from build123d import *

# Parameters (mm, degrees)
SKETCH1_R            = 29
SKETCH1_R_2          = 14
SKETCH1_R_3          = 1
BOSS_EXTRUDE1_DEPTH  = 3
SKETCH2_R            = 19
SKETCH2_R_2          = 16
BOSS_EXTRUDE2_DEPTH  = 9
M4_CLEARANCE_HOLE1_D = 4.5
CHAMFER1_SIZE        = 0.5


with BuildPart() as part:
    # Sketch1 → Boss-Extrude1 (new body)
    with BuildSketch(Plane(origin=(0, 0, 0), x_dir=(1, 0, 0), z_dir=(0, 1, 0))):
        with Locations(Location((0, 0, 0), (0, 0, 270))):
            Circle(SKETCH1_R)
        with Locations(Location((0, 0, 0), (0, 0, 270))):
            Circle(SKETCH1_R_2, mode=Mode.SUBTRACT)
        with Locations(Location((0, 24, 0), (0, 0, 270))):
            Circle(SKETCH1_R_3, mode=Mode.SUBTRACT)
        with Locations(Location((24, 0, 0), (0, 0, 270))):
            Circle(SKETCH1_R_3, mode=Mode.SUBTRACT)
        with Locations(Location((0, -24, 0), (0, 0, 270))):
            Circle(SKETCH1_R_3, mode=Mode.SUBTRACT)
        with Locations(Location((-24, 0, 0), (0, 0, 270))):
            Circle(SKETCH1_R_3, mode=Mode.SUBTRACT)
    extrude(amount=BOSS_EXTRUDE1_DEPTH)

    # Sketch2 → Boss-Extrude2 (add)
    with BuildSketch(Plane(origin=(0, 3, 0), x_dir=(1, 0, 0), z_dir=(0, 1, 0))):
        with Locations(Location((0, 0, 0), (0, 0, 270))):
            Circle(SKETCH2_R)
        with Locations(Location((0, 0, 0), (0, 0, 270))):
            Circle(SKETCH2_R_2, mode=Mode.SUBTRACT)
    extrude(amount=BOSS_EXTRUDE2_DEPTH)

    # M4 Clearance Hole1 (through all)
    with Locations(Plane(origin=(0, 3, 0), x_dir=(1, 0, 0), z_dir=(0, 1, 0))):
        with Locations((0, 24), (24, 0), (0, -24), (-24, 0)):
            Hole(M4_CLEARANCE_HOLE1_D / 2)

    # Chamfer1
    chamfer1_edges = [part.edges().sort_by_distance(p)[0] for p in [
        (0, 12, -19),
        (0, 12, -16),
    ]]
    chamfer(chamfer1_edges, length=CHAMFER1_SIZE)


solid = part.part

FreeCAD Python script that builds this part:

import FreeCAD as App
import Part
import Sketcher


def edges_at(feature, points):
    """Names of the edges that pass closest to the given points."""
    edges = feature.Shape.Edges
    near = lambda p: min(range(len(edges)), key=lambda i: edges[i].distToShape(Part.Vertex(*p))[0])
    return sorted({f"Edge{near(p) + 1}" for p in points})

doc = App.newDocument("Part")
body = doc.addObject("PartDesign::Body", "Body")

# Sketch on XZ plane
sketch1 = body.newObject("Sketcher::SketchObject", "Sketch")
sketch1.AttachmentSupport = (doc.getObject("XZ_Plane"), [""])
sketch1.MapMode = "FlatFace"
sketch1.addGeometry(Part.Circle(App.Vector(0, 0, 0), App.Vector(0, 0, 1), 29), False)
sketch1.addGeometry(Part.Circle(App.Vector(0, -24, 0), App.Vector(0, 0, 1), 1), False)
sketch1.addGeometry(Part.Circle(App.Vector(-24, 0, 0), App.Vector(0, 0, 1), 1), False)
sketch1.addGeometry(Part.Circle(App.Vector(24, 0, 0), App.Vector(0, 0, 1), 1), False)
sketch1.addGeometry(Part.Circle(App.Vector(0, 0, 0), App.Vector(0, 0, 1), 14), False)
sketch1.addGeometry(Part.Circle(App.Vector(0, 24, 0), App.Vector(0, 0, 1), 1), False)
sketch1.addConstraint(Sketcher.Constraint("Coincident", 0, 3, -1, 1))
sketch1.addConstraint(Sketcher.Constraint("Coincident", 4, 3, -1, 1))
sketch1.addConstraint(Sketcher.Constraint("Equal", 1, 2))
sketch1.addConstraint(Sketcher.Constraint("Equal", 2, 3))
sketch1.addConstraint(Sketcher.Constraint("Equal", 3, 5))
sketch1.addConstraint(Sketcher.Constraint("Symmetric", 2, 3, 3, 3, -1, 1))
sketch1.addConstraint(Sketcher.Constraint("Symmetric", 1, 3, 5, 3, -1, 1))
sketch1.addConstraint(Sketcher.Constraint("PointOnObject", 1, 3, -2))
sketch1.addConstraint(Sketcher.Constraint("PointOnObject", 2, 3, -1))
sketch1.addConstraint(Sketcher.Constraint("Diameter", 0, 58.0))
sketch1.addConstraint(Sketcher.Constraint("Diameter", 1, 2.0))
sketch1.addConstraint(Sketcher.Constraint("Diameter", 4, 28.0))
sketch1.addConstraint(Sketcher.Constraint("DistanceY", 1, 3, -1, 1, 24.0))
sketch1.addConstraint(Sketcher.Constraint("DistanceX", 2, 3, -1, 1, 24.0))
pad1 = body.newObject("PartDesign::Pad", "Pad")
pad1.Profile = sketch1
pad1.Length = 3
pad1.Reversed = True

# Sketch on XZ plane
sketch2 = body.newObject("Sketcher::SketchObject", "Sketch001")
sketch2.AttachmentSupport = (doc.getObject("XZ_Plane"), [""])
sketch2.MapMode = "FlatFace"
sketch2.AttachmentOffset = App.Placement(App.Vector(0, 0, -3), App.Rotation())
sketch2.addGeometry(Part.Circle(App.Vector(0, 0, 0), App.Vector(0, 0, 1), 19), False)
sketch2.addGeometry(Part.Circle(App.Vector(0, 0, 0), App.Vector(0, 0, 1), 16), False)
sketch2.addConstraint(Sketcher.Constraint("Coincident", 0, 3, -1, 1))
sketch2.addConstraint(Sketcher.Constraint("Coincident", 1, 3, -1, 1))
sketch2.addConstraint(Sketcher.Constraint("Diameter", 0, 38.0))
sketch2.addConstraint(Sketcher.Constraint("Diameter", 1, 32.0))
pad2 = body.newObject("PartDesign::Pad", "Pad001")
pad2.Profile = sketch2
pad2.Length = 9
pad2.Reversed = True

# Sketch on XZ plane
sketch3 = body.newObject("Sketcher::SketchObject", "Sketch002")
sketch3.AttachmentSupport = (doc.getObject("XZ_Plane"), [""])
sketch3.MapMode = "FlatFace"
sketch3.AttachmentOffset = App.Placement(App.Vector(0, 0, -3), App.Rotation())
sketch3.addGeometry(Part.Circle(App.Vector(0, -24, 0), App.Vector(0, 0, 1), 2.2), False)
sketch3.addGeometry(Part.Circle(App.Vector(24, 0, 0), App.Vector(0, 0, 1), 2.2), False)
sketch3.addGeometry(Part.Circle(App.Vector(0, 24, 0), App.Vector(0, 0, 1), 2.2), False)
sketch3.addGeometry(Part.Circle(App.Vector(-24, 0, 0), App.Vector(0, 0, 1), 2.2), False)
sketch3.addConstraint(Sketcher.Constraint("Equal", 0, 1))
sketch3.addConstraint(Sketcher.Constraint("Equal", 1, 2))
sketch3.addConstraint(Sketcher.Constraint("Equal", 2, 3))
sketch3.addConstraint(Sketcher.Constraint("Symmetric", 0, 3, 2, 3, -1, 1))
sketch3.addConstraint(Sketcher.Constraint("Symmetric", 1, 3, 3, 3, -1, 1))
sketch3.addConstraint(Sketcher.Constraint("PointOnObject", 0, 3, -2))
sketch3.addConstraint(Sketcher.Constraint("PointOnObject", 1, 3, -1))
sketch3.addConstraint(Sketcher.Constraint("Diameter", 0, 4.5))
sketch3.addConstraint(Sketcher.Constraint("DistanceY", 0, 3, -1, 1, 24.0))
sketch3.addConstraint(Sketcher.Constraint("DistanceX", -1, 1, 1, 3, 24.0))
doc.recompute()
hole = body.newObject("PartDesign::Hole", "Hole")
hole.Profile = sketch3
hole.ThreadType = "None"
hole.Diameter = 4.5
hole.DepthType = "ThroughAll"
hole.Reversed = True
doc.recompute()

chamfer = body.newObject("PartDesign::Chamfer", "Chamfer")
chamfer.Base = (hole, edges_at(hole, [(0, 12, -19), (0, 12, -16)]))
chamfer.Size = 0.5

doc.recompute()
